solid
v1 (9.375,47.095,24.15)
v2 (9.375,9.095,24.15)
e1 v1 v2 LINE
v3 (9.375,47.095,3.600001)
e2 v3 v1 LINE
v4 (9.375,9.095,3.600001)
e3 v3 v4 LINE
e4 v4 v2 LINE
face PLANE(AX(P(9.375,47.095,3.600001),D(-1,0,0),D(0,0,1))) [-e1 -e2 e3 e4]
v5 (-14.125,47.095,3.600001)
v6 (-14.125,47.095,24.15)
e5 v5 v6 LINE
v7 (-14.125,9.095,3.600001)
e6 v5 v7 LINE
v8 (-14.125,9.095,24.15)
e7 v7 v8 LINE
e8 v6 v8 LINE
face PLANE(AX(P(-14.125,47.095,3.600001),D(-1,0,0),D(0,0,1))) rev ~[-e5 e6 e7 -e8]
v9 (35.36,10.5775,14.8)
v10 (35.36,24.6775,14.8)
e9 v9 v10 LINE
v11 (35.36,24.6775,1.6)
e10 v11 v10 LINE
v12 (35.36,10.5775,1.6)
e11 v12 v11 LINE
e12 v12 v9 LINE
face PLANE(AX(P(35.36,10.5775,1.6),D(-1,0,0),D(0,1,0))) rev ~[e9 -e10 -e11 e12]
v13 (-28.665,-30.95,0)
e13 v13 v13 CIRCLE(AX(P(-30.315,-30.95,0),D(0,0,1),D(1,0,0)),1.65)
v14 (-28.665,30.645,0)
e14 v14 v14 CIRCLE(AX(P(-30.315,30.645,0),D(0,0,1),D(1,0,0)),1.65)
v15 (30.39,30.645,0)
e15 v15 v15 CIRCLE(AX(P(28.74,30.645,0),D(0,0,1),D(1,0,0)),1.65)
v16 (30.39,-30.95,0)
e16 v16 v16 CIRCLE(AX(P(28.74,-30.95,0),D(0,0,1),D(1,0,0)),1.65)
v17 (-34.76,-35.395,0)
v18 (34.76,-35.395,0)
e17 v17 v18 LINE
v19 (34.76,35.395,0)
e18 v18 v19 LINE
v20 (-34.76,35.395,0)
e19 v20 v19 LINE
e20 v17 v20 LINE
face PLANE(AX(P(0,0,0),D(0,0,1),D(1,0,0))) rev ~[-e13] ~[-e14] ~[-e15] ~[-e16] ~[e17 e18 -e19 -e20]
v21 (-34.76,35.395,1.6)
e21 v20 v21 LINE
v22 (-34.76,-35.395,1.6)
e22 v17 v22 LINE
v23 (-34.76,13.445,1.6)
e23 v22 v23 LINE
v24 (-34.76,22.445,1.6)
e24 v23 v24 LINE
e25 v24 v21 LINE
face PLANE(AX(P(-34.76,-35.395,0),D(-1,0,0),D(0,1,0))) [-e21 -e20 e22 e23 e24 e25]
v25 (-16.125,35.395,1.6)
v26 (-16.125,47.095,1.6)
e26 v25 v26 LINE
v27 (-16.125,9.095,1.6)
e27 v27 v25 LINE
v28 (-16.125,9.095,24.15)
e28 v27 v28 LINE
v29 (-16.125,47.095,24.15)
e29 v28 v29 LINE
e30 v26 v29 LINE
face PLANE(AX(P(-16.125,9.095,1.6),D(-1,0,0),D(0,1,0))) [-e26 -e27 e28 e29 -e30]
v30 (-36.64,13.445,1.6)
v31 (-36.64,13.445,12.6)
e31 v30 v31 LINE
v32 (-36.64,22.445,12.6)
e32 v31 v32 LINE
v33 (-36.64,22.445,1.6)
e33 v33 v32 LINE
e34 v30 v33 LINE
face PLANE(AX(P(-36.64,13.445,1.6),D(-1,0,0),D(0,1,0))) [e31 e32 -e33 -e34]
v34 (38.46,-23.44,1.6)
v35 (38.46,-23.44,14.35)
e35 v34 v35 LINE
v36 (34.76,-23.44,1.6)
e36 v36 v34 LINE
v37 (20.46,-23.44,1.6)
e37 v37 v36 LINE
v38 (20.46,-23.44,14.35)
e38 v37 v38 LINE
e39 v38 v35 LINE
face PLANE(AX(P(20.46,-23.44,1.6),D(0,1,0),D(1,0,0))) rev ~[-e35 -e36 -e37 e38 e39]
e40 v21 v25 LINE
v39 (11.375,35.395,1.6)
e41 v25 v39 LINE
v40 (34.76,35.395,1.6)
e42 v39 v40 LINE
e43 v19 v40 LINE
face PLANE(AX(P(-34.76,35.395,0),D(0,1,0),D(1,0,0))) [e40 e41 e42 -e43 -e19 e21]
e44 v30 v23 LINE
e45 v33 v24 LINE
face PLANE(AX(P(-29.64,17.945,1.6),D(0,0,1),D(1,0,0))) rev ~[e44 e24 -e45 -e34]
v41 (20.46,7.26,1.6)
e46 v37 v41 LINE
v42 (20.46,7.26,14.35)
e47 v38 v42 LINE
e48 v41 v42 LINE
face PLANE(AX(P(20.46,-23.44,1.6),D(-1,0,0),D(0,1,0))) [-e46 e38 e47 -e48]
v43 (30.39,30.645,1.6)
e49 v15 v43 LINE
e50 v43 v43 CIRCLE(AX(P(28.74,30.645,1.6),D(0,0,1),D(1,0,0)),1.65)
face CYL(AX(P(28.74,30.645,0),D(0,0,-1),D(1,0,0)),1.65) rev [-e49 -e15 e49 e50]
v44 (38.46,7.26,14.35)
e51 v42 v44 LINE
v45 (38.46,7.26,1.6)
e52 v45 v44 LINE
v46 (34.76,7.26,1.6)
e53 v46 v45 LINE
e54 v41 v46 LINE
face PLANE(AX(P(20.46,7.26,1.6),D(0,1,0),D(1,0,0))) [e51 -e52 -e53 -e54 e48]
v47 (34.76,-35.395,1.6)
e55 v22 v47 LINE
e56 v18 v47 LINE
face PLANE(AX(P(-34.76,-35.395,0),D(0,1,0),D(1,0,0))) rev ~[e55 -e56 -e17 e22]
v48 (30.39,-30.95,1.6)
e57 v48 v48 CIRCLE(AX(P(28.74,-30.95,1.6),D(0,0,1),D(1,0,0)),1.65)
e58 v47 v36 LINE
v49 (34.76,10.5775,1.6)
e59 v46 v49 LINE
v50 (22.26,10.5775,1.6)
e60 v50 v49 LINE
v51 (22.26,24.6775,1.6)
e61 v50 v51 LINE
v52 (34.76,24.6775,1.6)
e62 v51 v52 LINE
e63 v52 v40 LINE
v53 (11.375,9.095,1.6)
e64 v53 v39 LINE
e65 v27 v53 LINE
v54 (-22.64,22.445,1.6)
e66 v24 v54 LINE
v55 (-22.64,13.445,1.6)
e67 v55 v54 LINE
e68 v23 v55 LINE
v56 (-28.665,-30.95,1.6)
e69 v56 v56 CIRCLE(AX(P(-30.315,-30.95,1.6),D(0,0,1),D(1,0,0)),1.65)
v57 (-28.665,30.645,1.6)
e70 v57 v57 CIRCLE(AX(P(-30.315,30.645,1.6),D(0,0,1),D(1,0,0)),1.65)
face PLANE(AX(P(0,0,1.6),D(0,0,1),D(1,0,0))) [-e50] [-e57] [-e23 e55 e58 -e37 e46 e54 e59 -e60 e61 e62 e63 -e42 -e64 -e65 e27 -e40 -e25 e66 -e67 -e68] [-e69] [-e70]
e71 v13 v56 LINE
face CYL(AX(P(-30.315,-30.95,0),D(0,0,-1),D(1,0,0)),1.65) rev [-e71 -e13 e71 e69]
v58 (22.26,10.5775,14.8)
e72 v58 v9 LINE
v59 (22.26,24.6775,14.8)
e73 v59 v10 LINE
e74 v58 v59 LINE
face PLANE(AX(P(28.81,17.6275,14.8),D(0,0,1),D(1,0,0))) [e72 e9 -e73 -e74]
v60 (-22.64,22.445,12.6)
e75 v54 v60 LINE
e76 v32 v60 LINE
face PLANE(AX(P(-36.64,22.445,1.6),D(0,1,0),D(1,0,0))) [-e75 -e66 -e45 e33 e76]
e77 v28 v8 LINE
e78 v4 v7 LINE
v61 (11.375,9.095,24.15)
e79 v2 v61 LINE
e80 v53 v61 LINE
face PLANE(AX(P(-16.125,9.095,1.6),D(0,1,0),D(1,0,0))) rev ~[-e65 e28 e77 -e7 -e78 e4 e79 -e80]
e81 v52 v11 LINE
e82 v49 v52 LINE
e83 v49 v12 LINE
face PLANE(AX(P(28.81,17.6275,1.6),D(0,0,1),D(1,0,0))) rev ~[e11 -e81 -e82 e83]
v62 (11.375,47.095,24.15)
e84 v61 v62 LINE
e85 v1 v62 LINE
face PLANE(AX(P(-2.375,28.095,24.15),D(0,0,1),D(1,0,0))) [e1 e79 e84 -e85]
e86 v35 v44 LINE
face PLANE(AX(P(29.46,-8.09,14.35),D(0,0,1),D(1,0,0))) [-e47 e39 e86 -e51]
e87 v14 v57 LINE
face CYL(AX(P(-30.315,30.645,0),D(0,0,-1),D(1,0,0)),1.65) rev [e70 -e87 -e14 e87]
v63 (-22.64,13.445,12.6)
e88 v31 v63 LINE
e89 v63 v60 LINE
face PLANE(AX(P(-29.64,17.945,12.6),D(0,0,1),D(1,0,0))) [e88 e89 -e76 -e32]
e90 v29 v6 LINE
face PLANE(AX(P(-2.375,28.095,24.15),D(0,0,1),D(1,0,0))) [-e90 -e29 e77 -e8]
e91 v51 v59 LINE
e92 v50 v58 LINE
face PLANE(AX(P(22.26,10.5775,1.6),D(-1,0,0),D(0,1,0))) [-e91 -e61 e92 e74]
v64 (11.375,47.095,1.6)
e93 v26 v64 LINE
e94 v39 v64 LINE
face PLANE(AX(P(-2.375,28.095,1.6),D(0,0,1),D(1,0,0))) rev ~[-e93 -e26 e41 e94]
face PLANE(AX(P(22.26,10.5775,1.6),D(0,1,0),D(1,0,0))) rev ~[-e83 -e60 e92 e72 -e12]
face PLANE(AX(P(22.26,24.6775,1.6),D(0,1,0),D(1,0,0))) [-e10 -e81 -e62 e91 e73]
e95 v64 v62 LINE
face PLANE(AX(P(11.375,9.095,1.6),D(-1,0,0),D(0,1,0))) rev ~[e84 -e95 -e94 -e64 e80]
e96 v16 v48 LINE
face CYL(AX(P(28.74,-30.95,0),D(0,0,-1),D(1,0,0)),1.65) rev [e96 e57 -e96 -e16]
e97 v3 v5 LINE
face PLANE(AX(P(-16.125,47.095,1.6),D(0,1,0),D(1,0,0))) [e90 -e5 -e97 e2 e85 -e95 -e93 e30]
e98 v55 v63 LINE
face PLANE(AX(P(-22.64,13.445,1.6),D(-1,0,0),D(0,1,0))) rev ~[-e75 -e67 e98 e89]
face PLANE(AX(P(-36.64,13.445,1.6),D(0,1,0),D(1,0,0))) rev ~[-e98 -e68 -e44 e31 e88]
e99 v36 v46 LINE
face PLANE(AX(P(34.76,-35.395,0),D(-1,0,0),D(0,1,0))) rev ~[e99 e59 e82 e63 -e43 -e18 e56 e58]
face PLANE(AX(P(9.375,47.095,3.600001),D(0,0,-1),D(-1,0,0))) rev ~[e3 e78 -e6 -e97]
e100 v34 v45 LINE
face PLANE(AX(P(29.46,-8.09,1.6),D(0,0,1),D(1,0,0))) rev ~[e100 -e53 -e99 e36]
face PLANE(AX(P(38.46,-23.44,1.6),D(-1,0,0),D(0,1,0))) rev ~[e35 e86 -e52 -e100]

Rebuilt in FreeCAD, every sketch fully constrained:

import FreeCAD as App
import Part
import Sketcher

V = App.Vector
Q = App.Units.Quantity


def add_polygon(sketch, points):
    """Adds a closed chain of lines whose ends are joined by coincident constraints."""
    first, n = sketch.GeometryCount, len(points)
    for a, b in zip(points, points[1:] + points[:1]):
        sketch.addGeometry(Part.LineSegment(App.Vector(*a, 0), App.Vector(*b, 0)), False)
    for i in range(n):
        sketch.addConstraint(Sketcher.Constraint("Coincident", first + i, 2, first + (i + 1) % n, 1))

doc = App.newDocument("Part")
params = doc.addObject("Spreadsheet::Sheet", "Params")
for row, (alias, value) in enumerate([
    ("sketch1_diameter", "3.3 mm"),
    ("sketch1_width", "69.52 mm"),
    ("sketch1_height", "70.79 mm"),
    ("pad1_length", "1.6 mm"),
    ("sketch2_width", "18 mm"),
    ("sketch2_height", "30.7 mm"),
    ("pad2_length", "12.75 mm"),
    ("sketch3_width", "13.1 mm"),
    ("sketch3_height", "14.1 mm"),
    ("pad3_length", "13.2 mm"),
    ("sketch4_width", "14 mm"),
    ("sketch4_height", "9 mm"),
    ("pad4_length", "11 mm"),
    ("sketch5_height", "38 mm"),
    ("sketch5_width", "27.5 mm"),
    ("pad5_length", "22.55 mm"),
    ("sketch6_width", "23.5 mm"),
    ("pocket1_length", "38 mm"),
], start=1):
    params.set(f"A{row}", alias)
    params.set(f"B{row}", "=" + value)
    params.setAlias(f"B{row}", alias)

body = doc.addObject("PartDesign::Body", "Body")

sketch1 = doc.addObject("Sketcher::SketchObject", "Sketch")
body.addObject(sketch1)
sketch1.AttachmentSupport = (doc.XY_Plane, [""])
sketch1.MapMode = "FlatFace"
add_polygon(sketch1, [(-34.76, 35.395), (-34.76, -35.395), (34.76, -35.395), (34.76, 35.395)])
sketch1.addGeometry(Part.Circle(V(-30.315, -30.95, 0), V(0, 0, 1), 1.65), False)
sketch1.addGeometry(Part.Circle(V(28.74, -30.95, 0), V(0, 0, 1), 1.65), False)
sketch1.addGeometry(Part.Circle(V(-30.315, 30.645, 0), V(0, 0, 1), 1.65), False)
sketch1.addGeometry(Part.Circle(V(28.74, 30.645, 0), V(0, 0, 1), 1.65), False)
sketch1.addConstraint([
    Sketcher.Constraint("Vertical", 0),
    Sketcher.Constraint("Horizontal", 1),
    Sketcher.Constraint("Vertical", 2),
    Sketcher.Constraint("Horizontal", 3),
    Sketcher.Constraint("Equal", 4, 5),
    Sketcher.Constraint("Equal", 5, 6),
    Sketcher.Constraint("Equal", 6, 7),
    Sketcher.Constraint("Symmetric", 0, 2, 2, 2, -1, 1),
    Sketcher.Constraint("Horizontal", 4, 3, 5, 3),
    Sketcher.Constraint("Horizontal", 6, 3, 7, 3),
    Sketcher.Constraint("Vertical", 4, 3, 6, 3),
    Sketcher.Constraint("Vertical", 5, 3, 7, 3),
    Sketcher.Constraint("Diameter", 4, Q("3.3 mm")),
    Sketcher.Constraint("DistanceX", 1, 1, 1, 2, Q("69.52 mm")),
    Sketcher.Constraint("DistanceY", 0, 2, 0, 1, Q("70.79 mm")),
    Sketcher.Constraint("DistanceX", 0, 2, 5, 3, Q("63.5 mm")),
    Sketcher.Constraint("DistanceY", 4, 3, -1, 1, Q("30.95 mm")),
    Sketcher.Constraint("DistanceY", 0, 2, 6, 3, Q("66.04 mm")),
    Sketcher.Constraint("DistanceX", 4, 3, -1, 1, Q("30.315 mm")),
])
sketch1.setExpression("Constraints[16]", "Params.sketch1_diameter")
sketch1.setExpression("Constraints[17]", "Params.sketch1_width")
sketch1.setExpression("Constraints[18]", "Params.sketch1_height")
pad1 = doc.addObject("PartDesign::Pad", "Pad")
body.addObject(pad1)
pad1.Profile = sketch1
pad1.setExpression("Length", "Params.pad1_length")

sketch2 = doc.addObject("Sketcher::SketchObject", "Sketch001")
body.addObject(sketch2)
sketch2.AttachmentSupport = (doc.XY_Plane, [""])
sketch2.MapMode = "FlatFace"
sketch2.AttachmentOffset = App.Placement(V(0, 0, 1.6), App.Rotation())
add_polygon(sketch2, [(20.46, 7.26), (20.46, -23.44), (38.46, -23.44), (38.46, 7.26)])
sketch2.addConstraint([
    Sketcher.Constraint("Vertical", 0),
    Sketcher.Constraint("Horizontal", 1),
    Sketcher.Constraint("Vertical", 2),
    Sketcher.Constraint("Horizontal", 3),
    Sketcher.Constraint("DistanceX", 1, 1, 1, 2, Q("18 mm")),
    Sketcher.Constraint("DistanceY", 0, 2, 0, 1, Q("30.7 mm")),
    Sketcher.Constraint("DistanceX", -1, 1, 0, 2, Q("20.46 mm")),
    Sketcher.Constraint("DistanceY", 0, 2, -1, 1, Q("23.44 mm")),
])
sketch2.setExpression("Constraints[8]", "Params.sketch2_width")
sketch2.setExpression("Constraints[9]", "Params.sketch2_height")
pad2 = doc.addObject("PartDesign::Pad", "Pad001")
body.addObject(pad2)
pad2.Profile = sketch2
pad2.setExpression("Length", "Params.pad2_length")

sketch3 = doc.addObject("Sketcher::SketchObject", "Sketch002")
body.addObject(sketch3)
sketch3.AttachmentSupport = (doc.XY_Plane, [""])
sketch3.MapMode = "FlatFace"
sketch3.AttachmentOffset = App.Placement(V(0, 0, 1.6), App.Rotation())
add_polygon(sketch3, [(22.26, 24.6775), (22.26, 10.5775), (35.36, 10.5775), (35.36, 24.6775)])
sketch3.addConstraint([
    Sketcher.Constraint("Vertical", 0),
    Sketcher.Constraint("Horizontal", 1),
    Sketcher.Constraint("Vertical", 2),
    Sketcher.Constraint("Horizontal", 3),
    Sketcher.Constraint("DistanceX", 1, 1, 1, 2, Q("13.1 mm")),
    Sketcher.Constraint("DistanceY", 0, 2, 0, 1, Q("14.1 mm")),
    Sketcher.Constraint("DistanceX", -1, 1, 0, 2, Q("22.26 mm")),
    Sketcher.Constraint("DistanceY", -1, 1, 0, 2, Q("10.5775 mm")),
])
sketch3.setExpression("Constraints[8]", "Params.sketch3_width")
sketch3.setExpression("Constraints[9]", "Params.sketch3_height")
pad3 = doc.addObject("PartDesign::Pad", "Pad002")
body.addObject(pad3)
pad3.Profile = sketch3
pad3.setExpression("Length", "Params.pad3_length")

sketch4 = doc.addObject("Sketcher::SketchObject", "Sketch003")
body.addObject(sketch4)
sketch4.AttachmentSupport = (doc.XY_Plane, [""])
sketch4.MapMode = "FlatFace"
sketch4.AttachmentOffset = App.Placement(V(0, 0, 1.6), App.Rotation())
add_polygon(sketch4, [(-36.64, 22.445), (-36.64, 13.445), (-22.64, 13.445), (-22.64, 22.445)])
sketch4.addConstraint([
    Sketcher.Constraint("Vertical", 0),
    Sketcher.Constraint("Horizontal", 1),
    Sketcher.Constraint("Vertical", 2),
    Sketcher.Constraint("Horizontal", 3),
    Sketcher.Constraint("DistanceX", 1, 1, 1, 2, Q("14 mm")),
    Sketcher.Constraint("DistanceY", 0, 2, 0, 1, Q("9 mm")),
    Sketcher.Constraint("DistanceX", 0, 2, -1, 1, Q("36.64 mm")),
    Sketcher.Constraint("DistanceY", -1, 1, 0, 2, Q("13.445 mm")),
])
sketch4.setExpression("Constraints[8]", "Params.sketch4_width")
sketch4.setExpression("Constraints[9]", "Params.sketch4_height")
pad4 = doc.addObject("PartDesign::Pad", "Pad003")
body.addObject(pad4)
pad4.Profile = sketch4
pad4.setExpression("Length", "Params.pad4_length")

sketch5 = doc.addObject("Sketcher::SketchObject", "Sketch004")
body.addObject(sketch5)
sketch5.AttachmentSupport = (doc.XY_Plane, [""])
sketch5.MapMode = "FlatFace"
sketch5.AttachmentOffset = App.Placement(V(0, 0, 1.6), App.Rotation())
add_polygon(sketch5, [(-16.125, 47.095), (-16.125, 9.095), (11.375, 9.095), (11.375, 47.095)])
sketch5.addConstraint([
    Sketcher.Constraint("Vertical", 0),
    Sketcher.Constraint("Horizontal", 1),
    Sketcher.Constraint("Vertical", 2),
    Sketcher.Constraint("Horizontal", 3),
    Sketcher.Constraint("DistanceY", 0, 2, 0, 1, Q("38 mm")),
    Sketcher.Constraint("DistanceX", 1, 1, 1, 2, Q("27.5 mm")),
    Sketcher.Constraint("DistanceX", 0, 2, -1, 1, Q("16.125 mm")),
    Sketcher.Constraint("DistanceY", -1, 1, 0, 2, Q("9.095 mm")),
])
sketch5.setExpression("Constraints[8]", "Params.sketch5_height")
sketch5.setExpression("Constraints[9]", "Params.sketch5_width")
pad5 = doc.addObject("PartDesign::Pad", "Pad004")
body.addObject(pad5)
pad5.Profile = sketch5
pad5.setExpression("Length", "Params.pad5_length")

sketch6 = doc.addObject("Sketcher::SketchObject", "Sketch005")
body.addObject(sketch6)
sketch6.AttachmentSupport = (doc.XZ_Plane, [""])
sketch6.MapMode = "FlatFace"
sketch6.AttachmentOffset = App.Placement(V(0, 0, -47.095), App.Rotation())
add_polygon(sketch6, [(9.375, 26.822077), (9.375, 3.600001), (-14.125, 3.600001), (-14.125, 26.822077)])
sketch6.addConstraint([
    Sketcher.Constraint("Vertical", 0),
    Sketcher.Constraint("Horizontal", 1),
    Sketcher.Constraint("Vertical", 2),
    Sketcher.Constraint("Horizontal", 3),
    Sketcher.Constraint("DistanceX", 1, 2, 1, 1, Q("23.5 mm")),
    Sketcher.Constraint("DistanceY", -1, 1, 0, 2, Q("3.600001 mm")),
    Sketcher.Constraint("DistanceX", -1, 1, 0, 2, Q("9.375 mm")),
    Sketcher.Constraint("DistanceY", 0, 2, 0, 1, Q("23.222077 mm")),
])
sketch6.setExpression("Constraints[8]", "Params.sketch6_width")
pocket1 = doc.addObject("PartDesign::Pocket", "Pocket")
body.addObject(pocket1)
pocket1.Profile = sketch6
pocket1.setExpression("Length", "Params.pocket1_length")
pocket1.Reversed = True

doc.recompute()
